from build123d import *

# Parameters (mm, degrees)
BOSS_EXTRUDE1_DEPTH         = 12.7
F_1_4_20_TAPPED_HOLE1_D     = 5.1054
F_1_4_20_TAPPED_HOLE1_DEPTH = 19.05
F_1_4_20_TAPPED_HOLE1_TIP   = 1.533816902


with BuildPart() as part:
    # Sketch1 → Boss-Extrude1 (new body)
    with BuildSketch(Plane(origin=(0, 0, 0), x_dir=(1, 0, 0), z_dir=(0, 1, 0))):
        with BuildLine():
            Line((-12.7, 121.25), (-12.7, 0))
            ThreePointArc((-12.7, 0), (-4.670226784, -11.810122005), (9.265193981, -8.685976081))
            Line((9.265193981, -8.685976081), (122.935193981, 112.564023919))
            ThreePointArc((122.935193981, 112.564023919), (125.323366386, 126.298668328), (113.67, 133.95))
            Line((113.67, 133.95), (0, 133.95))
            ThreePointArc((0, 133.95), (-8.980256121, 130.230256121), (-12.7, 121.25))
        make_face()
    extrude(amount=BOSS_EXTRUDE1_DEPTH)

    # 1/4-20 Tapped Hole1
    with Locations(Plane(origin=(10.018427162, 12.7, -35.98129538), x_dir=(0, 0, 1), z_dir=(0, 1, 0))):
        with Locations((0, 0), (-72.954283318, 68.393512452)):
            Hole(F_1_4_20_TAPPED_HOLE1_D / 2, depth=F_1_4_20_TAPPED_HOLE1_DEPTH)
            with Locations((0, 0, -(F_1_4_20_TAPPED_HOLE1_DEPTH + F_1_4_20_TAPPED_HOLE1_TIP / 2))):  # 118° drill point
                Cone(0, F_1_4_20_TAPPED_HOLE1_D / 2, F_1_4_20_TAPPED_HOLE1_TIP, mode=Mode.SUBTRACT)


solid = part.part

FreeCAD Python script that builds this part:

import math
import FreeCAD as App
import Part
import Sketcher
from FreeCAD import Vector
Q = App.Units.Quantity

doc = App.newDocument("Part")
body = doc.addObject("PartDesign::Body", "Body")

sketch1 = body.newObject("Sketcher::SketchObject", "Sketch")
sketch1.AttachmentSupport = (doc.getObject("XZ_Plane"), [""])
sketch1.MapMode = "FlatFace"
sketch1.addGeometry(Part.LineSegment(Vector(-12.7, -121.25, 0), Vector(-12.7, 0, 0)), False)
sketch1.addGeometry(Part.ArcOfCircle(Part.Circle(Vector(0, 0, 0), Vector(0, 0, 1), 12.7), math.radians(43.151918), math.radians(180)), False)
sketch1.addGeometry(Part.LineSegment(Vector(9.265194, 8.685976, 0), Vector(122.935194, -112.564024, 0)), False)
sketch1.addGeometry(Part.ArcOfCircle(Part.Circle(Vector(113.67, -121.25, 0), Vector(0, 0, 1), 12.7), math.radians(-90), math.radians(43.151918)), False)
sketch1.addGeometry(Part.LineSegment(Vector(113.67, -133.95, 0), Vector(0, -133.95, 0)), False)
sketch1.addGeometry(Part.ArcOfCircle(Part.Circle(Vector(0, -121.25, 0), Vector(0, 0, 1), 12.7), math.radians(180), math.radians(270)), False)
sketch1.addConstraint(Sketcher.Constraint("Tangent", 0, 2, 1, 2))
sketch1.addConstraint(Sketcher.Constraint("Tangent", 1, 1, 2, 1))
sketch1.addConstraint(Sketcher.Constraint("Tangent", 2, 2, 3, 2))
sketch1.addConstraint(Sketcher.Constraint("Tangent", 3, 1, 4, 1))
sketch1.addConstraint(Sketcher.Constraint("Tangent", 4, 2, 5, 2))
sketch1.addConstraint(Sketcher.Constraint("Tangent", 5, 1, 0, 1))
sketch1.addConstraint(Sketcher.Constraint("Vertical", 0))
sketch1.addConstraint(Sketcher.Constraint("Horizontal", 4))
sketch1.addConstraint(Sketcher.Constraint("Coincident", 1, 3, -1, 1))
sketch1.addConstraint(Sketcher.Constraint("Equal", 1, 3))
sketch1.addConstraint(Sketcher.Constraint("Equal", 3, 5))
sketch1.addConstraint(Sketcher.Constraint("Radius", 1, Q("0.5 in")))
sketch1.addConstraint(Sketcher.Constraint("DistanceX", 4, 2, 4, 1, Q("113.67 mm")))
sketch1.addConstraint(Sketcher.Constraint("DistanceY", 0, 1, 0, 2, Q("121.25 mm")))
pad1 = body.newObject("PartDesign::Pad", "Pad")
pad1.Profile = sketch1
pad1.Length = Q("0.5 in")
pad1.Reversed = True

sketch2 = body.newObject("Sketcher::SketchObject", "Sketch001")
sketch2.AttachmentSupport = (doc.getObject("XZ_Plane"), [""])
sketch2.MapMode = "FlatFace"
sketch2.AttachmentOffset = App.Placement(Vector(0, 0, -0.5 * 25.4), App.Rotation())
sketch2.addGeometry(Part.Circle(Vector(10.018427, -35.981295, 0), Vector(0, 0, 1), 2.5527), False)
sketch2.addGeometry(Part.Circle(Vector(78.41194, -108.935579, 0), Vector(0, 0, 1), 2.5527), False)
sketch2.addConstraint(Sketcher.Constraint("Equal", 0, 1))
sketch2.addConstraint(Sketcher.Constraint("Diameter", 0, Q("0.201 in")))
sketch2.addConstraint(Sketcher.Constraint("DistanceX", -1, 1, 1, 3, Q("78.41194 mm")))
sketch2.addConstraint(Sketcher.Constraint("DistanceY", 1, 3, -1, 1, Q("108.935579 mm")))
sketch2.addConstraint(Sketcher.Constraint("DistanceX", -1, 1, 0, 3, Q("10.018427 mm")))
sketch2.addConstraint(Sketcher.Constraint("DistanceY", 0, 3, -1, 1, Q("35.981295 mm")))
doc.recompute()
hole = body.newObject("PartDesign::Hole", "Hole")
hole.Profile = sketch2
hole.ThreadType = "None"
hole.Diameter = Q("0.201 in")
hole.DepthType = "Dimension"
hole.Depth = Q("0.75 in")
hole.DrillPoint = "Angled"
hole.DrillPointAngle = 118
hole.Reversed = True

doc.recompute()
